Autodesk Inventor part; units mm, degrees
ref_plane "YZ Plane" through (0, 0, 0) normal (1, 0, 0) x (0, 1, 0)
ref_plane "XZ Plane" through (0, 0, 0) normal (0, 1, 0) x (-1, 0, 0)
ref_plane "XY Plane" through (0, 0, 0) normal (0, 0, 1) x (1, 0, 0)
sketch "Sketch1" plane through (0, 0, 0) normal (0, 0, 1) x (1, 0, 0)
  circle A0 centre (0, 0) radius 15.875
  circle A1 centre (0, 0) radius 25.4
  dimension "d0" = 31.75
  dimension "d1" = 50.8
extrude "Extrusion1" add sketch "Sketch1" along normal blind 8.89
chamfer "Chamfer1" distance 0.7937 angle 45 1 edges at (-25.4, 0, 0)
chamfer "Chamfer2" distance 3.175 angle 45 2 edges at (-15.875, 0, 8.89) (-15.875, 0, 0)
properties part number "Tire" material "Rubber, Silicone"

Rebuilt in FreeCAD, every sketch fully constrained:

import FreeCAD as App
import Part
import Sketcher
from FreeCAD import Vector
Q = App.Units.Quantity


def edges_at(feature, points):
    """Names of the edges that pass closest to the given points."""
    edges = feature.Shape.Edges
    near = lambda p: min(range(len(edges)), key=lambda i: edges[i].distToShape(Part.Vertex(*p))[0])
    return sorted({f"Edge{near(p) + 1}" for p in points})

doc = App.newDocument("Part")
body = doc.addObject("PartDesign::Body", "Body")

sketch1 = body.newObject("Sketcher::SketchObject", "Sketch")
sketch1.AttachmentSupport = (doc.getObject("XY_Plane"), [""])
sketch1.MapMode = "FlatFace"
sketch1.addGeometry(Part.Circle(Vector(0, 0, 0), Vector(0, 0, 1), 25.4), False)
sketch1.addGeometry(Part.Circle(Vector(0, 0, 0), Vector(0, 0, 1), 15.875), False)
sketch1.addConstraint(Sketcher.Constraint("Coincident", 0, 3, -1, 1))
sketch1.addConstraint(Sketcher.Constraint("Coincident", 1, 3, -1, 1))
sketch1.addConstraint(Sketcher.Constraint("Diameter", 0, Q("2 in")))
sketch1.addConstraint(Sketcher.Constraint("Diameter", 1, Q("1.25 in")))
pad1 = body.newObject("PartDesign::Pad", "Pad")
pad1.Profile = sketch1
pad1.Length = Q("0.35 in")
doc.recompute()

chamfer = body.newObject("PartDesign::Chamfer", "Chamfer")
chamfer.Base = (pad1, edges_at(pad1, [(-25.4, 0, 0)]))
chamfer.Size = Q("0.031248 in")
doc.recompute()

chamfer2 = body.newObject("PartDesign::Chamfer", "Chamfer001")
chamfer2.Base = (chamfer, edges_at(chamfer, [(-15.875, 0, 8.89), (-15.875, 0, 0)]))
chamfer2.Size = Q("0.125 in")

doc.recompute()
